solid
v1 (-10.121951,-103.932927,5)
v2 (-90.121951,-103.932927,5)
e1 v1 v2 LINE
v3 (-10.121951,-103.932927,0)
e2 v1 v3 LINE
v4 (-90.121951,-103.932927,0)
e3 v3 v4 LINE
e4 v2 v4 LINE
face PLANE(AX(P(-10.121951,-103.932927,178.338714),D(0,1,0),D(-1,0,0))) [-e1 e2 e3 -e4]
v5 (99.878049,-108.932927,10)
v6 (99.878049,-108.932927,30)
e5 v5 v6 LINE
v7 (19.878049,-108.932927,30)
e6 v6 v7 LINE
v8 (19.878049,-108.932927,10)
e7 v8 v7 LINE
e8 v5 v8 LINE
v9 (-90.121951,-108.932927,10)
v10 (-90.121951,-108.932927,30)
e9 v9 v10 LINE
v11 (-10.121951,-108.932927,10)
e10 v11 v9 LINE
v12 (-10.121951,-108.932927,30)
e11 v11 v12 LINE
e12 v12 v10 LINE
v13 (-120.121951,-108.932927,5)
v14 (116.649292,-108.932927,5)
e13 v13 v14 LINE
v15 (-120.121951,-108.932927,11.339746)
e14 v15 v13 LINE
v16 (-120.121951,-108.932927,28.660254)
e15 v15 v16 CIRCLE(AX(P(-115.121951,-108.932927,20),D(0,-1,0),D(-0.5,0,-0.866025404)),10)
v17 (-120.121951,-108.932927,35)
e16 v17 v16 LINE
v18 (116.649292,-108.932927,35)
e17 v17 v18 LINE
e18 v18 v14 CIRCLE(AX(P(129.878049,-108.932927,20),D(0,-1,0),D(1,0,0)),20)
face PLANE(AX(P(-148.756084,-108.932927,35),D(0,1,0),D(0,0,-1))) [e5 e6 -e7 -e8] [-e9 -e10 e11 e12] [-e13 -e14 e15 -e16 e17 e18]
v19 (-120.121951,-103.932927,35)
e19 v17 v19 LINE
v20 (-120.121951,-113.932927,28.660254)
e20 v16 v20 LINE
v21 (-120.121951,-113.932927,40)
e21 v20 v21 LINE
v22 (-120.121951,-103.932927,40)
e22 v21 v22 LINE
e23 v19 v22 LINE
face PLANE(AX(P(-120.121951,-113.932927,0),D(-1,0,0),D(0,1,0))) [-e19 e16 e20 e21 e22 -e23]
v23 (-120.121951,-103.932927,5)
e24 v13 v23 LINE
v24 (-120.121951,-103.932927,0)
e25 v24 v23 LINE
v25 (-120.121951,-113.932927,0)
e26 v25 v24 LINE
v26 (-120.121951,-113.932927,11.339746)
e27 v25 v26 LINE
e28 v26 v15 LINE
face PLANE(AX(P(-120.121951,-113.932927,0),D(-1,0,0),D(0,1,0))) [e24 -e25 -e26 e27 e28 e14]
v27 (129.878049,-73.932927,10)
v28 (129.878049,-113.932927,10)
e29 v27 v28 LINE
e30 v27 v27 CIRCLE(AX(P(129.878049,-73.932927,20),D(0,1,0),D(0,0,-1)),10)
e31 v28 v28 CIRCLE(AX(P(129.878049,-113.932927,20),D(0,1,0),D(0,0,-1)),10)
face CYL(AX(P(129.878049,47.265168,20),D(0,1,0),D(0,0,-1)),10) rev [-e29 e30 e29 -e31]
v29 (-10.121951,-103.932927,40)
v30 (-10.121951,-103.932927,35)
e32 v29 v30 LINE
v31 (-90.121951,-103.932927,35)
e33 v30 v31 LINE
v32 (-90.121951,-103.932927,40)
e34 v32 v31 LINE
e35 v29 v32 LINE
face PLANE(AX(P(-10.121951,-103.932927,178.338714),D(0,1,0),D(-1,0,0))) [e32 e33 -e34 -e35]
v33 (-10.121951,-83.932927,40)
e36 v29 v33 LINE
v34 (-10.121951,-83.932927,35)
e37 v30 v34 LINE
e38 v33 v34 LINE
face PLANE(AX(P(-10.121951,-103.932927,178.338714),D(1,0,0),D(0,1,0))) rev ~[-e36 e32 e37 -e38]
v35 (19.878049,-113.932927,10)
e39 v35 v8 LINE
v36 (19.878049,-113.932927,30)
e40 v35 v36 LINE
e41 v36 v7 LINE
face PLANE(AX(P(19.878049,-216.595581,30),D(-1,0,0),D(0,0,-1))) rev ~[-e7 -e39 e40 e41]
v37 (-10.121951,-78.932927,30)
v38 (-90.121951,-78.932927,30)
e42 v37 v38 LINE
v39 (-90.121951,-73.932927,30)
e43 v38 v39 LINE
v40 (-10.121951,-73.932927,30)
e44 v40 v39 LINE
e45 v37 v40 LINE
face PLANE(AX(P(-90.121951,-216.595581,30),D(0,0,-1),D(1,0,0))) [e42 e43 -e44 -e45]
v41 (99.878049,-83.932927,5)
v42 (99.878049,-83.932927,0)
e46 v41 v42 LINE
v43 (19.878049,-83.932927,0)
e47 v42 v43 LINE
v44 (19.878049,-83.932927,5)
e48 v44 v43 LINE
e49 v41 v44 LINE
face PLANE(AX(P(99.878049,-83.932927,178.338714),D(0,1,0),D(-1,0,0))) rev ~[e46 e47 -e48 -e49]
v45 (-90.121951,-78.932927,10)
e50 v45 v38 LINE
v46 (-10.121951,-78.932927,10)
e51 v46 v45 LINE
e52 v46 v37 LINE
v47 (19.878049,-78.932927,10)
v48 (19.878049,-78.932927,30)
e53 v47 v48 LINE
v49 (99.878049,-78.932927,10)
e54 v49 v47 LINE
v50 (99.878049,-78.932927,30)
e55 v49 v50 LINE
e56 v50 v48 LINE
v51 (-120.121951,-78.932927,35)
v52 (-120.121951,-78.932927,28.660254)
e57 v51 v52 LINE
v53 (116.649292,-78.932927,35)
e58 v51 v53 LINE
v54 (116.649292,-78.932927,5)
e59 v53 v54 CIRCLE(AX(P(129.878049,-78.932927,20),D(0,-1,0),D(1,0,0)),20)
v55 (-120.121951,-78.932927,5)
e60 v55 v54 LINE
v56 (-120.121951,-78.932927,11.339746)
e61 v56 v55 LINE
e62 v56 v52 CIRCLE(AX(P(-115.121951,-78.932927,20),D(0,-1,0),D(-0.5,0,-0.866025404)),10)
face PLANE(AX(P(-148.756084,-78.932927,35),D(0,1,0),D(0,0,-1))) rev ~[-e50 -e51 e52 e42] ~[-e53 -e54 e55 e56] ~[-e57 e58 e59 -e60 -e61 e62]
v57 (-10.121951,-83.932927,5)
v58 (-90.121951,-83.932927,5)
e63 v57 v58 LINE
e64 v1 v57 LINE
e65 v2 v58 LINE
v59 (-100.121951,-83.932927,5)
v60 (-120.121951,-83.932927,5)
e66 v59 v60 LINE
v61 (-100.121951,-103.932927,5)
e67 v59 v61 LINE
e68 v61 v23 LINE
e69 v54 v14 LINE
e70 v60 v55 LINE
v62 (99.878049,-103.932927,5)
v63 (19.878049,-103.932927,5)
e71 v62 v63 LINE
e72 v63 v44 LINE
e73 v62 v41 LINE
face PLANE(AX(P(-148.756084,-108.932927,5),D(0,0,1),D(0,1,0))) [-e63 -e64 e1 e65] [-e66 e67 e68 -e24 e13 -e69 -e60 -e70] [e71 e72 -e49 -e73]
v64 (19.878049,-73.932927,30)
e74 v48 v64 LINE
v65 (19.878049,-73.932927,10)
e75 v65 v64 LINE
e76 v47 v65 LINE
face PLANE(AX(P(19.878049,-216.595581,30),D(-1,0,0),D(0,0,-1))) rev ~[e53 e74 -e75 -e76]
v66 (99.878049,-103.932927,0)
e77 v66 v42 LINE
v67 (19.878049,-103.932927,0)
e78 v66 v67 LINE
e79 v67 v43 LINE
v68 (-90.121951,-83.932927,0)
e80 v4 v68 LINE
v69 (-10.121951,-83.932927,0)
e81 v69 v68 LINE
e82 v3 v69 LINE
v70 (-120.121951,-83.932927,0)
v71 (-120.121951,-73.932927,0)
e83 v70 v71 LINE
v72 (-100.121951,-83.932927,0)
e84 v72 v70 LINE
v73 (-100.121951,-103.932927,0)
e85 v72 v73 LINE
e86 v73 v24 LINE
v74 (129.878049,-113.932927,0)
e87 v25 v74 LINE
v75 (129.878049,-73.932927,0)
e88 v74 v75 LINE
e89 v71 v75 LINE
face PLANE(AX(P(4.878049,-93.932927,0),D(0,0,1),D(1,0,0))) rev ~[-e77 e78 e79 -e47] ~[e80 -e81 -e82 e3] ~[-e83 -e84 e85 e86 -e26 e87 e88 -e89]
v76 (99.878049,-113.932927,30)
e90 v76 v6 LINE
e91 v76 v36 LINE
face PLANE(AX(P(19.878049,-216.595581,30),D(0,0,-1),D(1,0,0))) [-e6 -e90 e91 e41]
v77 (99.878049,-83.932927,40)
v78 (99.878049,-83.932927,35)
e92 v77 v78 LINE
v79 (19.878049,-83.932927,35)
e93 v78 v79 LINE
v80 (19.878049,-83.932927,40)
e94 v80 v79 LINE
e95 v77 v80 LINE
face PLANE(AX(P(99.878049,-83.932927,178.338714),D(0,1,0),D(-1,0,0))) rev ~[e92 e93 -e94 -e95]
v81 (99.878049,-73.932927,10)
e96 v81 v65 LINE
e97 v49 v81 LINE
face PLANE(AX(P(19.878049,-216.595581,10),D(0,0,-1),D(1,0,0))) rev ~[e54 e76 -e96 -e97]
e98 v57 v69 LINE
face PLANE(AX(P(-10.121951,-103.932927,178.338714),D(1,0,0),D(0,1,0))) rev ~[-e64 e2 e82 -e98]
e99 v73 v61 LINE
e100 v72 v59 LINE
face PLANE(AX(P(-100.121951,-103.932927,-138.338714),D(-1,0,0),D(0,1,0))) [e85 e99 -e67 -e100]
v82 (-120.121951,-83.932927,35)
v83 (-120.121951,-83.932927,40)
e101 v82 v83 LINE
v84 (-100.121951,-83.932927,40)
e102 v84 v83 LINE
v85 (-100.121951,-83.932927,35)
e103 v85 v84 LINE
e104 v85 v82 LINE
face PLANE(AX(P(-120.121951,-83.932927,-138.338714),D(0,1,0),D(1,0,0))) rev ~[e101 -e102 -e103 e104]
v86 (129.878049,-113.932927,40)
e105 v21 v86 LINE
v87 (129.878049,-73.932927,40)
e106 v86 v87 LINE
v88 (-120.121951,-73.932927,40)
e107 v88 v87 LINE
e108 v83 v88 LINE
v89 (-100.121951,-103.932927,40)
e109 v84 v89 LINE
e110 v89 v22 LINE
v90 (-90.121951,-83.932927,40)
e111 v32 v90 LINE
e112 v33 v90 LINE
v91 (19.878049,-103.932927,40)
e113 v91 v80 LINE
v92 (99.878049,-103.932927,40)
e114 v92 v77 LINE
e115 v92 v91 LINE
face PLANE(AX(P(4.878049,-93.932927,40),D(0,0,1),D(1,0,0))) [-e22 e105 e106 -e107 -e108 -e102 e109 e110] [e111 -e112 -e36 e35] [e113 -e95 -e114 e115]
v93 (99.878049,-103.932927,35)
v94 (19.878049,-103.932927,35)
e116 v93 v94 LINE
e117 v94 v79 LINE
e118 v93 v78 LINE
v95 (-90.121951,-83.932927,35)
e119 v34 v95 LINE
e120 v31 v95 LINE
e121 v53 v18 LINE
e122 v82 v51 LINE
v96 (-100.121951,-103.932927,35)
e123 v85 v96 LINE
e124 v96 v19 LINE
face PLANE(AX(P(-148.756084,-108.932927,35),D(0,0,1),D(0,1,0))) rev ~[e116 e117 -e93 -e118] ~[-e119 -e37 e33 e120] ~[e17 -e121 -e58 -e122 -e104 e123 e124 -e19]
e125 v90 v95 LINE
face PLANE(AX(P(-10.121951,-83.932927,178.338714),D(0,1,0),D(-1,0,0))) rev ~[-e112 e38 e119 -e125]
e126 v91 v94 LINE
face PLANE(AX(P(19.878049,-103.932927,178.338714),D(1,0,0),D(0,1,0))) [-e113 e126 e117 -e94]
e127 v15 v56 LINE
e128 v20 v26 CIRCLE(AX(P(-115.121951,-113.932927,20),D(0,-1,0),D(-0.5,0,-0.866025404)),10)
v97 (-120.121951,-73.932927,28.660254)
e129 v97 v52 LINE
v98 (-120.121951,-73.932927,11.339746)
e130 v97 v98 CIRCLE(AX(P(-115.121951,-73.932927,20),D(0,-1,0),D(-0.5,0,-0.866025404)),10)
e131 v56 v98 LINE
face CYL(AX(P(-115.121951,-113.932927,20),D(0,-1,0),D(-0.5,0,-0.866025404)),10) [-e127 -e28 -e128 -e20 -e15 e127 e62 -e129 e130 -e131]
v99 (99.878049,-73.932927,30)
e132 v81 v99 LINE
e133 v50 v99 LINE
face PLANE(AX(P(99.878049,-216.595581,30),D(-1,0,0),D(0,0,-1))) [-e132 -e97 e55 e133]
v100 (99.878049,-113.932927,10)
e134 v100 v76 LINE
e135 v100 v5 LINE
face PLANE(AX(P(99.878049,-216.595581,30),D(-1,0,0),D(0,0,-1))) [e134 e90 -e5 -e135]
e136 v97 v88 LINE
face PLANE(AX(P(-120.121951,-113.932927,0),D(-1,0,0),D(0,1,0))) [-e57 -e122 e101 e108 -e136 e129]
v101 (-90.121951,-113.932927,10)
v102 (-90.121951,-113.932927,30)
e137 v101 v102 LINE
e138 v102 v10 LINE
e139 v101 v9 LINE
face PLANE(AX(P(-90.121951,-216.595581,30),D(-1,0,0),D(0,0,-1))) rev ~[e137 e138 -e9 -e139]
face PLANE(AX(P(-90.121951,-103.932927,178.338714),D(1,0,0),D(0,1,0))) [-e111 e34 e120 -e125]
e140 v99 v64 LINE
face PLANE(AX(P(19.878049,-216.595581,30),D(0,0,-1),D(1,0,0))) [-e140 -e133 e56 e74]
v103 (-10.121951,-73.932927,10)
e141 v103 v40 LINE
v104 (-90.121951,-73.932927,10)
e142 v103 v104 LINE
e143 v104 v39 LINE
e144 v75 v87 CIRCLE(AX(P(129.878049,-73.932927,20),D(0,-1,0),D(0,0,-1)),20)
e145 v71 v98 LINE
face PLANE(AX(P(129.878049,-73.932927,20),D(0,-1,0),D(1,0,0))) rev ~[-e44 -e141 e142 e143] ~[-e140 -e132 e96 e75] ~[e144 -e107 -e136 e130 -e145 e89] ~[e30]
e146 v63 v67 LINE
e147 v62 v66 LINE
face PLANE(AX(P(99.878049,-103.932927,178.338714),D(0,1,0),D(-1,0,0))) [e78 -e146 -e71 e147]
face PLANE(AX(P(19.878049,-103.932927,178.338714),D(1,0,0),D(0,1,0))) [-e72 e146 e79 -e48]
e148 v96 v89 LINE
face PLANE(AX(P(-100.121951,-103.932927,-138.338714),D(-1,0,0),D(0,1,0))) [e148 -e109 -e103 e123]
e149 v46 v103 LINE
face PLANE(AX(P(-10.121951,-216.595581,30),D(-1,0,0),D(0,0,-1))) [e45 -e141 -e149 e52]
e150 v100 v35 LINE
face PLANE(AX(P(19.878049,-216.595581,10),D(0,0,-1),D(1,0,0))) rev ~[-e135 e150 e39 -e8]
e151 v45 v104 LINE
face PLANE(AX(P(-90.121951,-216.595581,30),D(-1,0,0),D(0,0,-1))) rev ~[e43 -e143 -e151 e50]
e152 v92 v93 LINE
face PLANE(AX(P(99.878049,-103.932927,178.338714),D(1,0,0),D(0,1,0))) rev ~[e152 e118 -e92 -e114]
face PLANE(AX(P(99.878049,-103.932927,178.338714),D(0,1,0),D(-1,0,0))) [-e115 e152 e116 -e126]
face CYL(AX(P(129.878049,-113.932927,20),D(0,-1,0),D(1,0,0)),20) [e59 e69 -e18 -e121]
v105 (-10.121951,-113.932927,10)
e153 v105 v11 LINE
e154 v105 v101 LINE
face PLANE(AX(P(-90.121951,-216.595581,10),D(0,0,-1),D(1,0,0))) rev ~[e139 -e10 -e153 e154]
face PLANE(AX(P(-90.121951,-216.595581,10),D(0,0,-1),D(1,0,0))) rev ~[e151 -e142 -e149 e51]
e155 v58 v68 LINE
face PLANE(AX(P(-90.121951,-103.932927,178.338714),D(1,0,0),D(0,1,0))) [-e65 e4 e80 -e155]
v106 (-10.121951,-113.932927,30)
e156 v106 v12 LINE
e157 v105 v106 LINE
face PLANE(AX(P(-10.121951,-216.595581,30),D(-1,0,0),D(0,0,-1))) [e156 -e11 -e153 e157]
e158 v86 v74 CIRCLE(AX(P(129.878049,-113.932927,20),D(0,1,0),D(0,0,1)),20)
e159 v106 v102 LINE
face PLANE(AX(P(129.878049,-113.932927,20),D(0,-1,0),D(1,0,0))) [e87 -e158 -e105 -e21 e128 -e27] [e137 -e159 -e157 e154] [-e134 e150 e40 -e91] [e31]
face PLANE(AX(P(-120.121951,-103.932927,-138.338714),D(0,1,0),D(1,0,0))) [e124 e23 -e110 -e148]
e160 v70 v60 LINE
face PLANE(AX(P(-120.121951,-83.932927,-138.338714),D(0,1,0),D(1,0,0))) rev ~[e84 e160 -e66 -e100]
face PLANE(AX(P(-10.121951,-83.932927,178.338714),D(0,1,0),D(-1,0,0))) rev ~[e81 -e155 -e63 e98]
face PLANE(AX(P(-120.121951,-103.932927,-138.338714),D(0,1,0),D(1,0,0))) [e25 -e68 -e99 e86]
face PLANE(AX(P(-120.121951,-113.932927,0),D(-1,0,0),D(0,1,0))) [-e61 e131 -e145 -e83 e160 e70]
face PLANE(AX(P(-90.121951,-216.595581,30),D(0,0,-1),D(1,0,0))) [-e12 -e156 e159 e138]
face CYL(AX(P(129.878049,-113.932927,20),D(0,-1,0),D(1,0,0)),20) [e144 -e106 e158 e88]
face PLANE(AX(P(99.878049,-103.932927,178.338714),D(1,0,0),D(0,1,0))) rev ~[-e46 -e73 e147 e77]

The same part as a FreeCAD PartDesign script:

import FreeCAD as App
import Part
import Sketcher
Q = App.Units.Quantity

doc = App.newDocument("Part")
body = doc.addObject("PartDesign::Body", "Body")

# Sketch on XY plane
sketch1 = body.newObject("Sketcher::SketchObject", "Sketch")
sketch1.AttachmentSupport = (doc.getObject("XY_Plane"), [""])
sketch1.MapMode = "FlatFace"
sketch1.addGeometry([
    Part.LineSegment(App.Vector(-120, -74, 0), App.Vector(-120, -114, 0)),
    Part.LineSegment(App.Vector(-120, -114, 0), App.Vector(130, -114, 0)),
    Part.LineSegment(App.Vector(130, -114, 0), App.Vector(130, -74, 0)),
    Part.LineSegment(App.Vector(130, -74, 0), App.Vector(-120, -74, 0)),
], False)
sketch1.addConstraint([
    Sketcher.Constraint("Coincident", 0, 2, 1, 1),
    Sketcher.Constraint("Coincident", 1, 2, 2, 1),
    Sketcher.Constraint("Coincident", 2, 2, 3, 1),
    Sketcher.Constraint("Coincident", 3, 2, 0, 1),
    Sketcher.Constraint("Vertical", 0),
    Sketcher.Constraint("Horizontal", 1),
    Sketcher.Constraint("Vertical", 2),
    Sketcher.Constraint("Horizontal", 3),
    Sketcher.Constraint("DistanceX", 1, 1, 1, 2, Q("250 mm")),
    Sketcher.Constraint("DistanceY", 0, 2, 0, 1, Q("40 mm")),
    Sketcher.Constraint("DistanceX", 0, 2, -1, 1, Q("120.121951 mm")),
    Sketcher.Constraint("DistanceY", 0, 2, -1, 1, Q("113.932927 mm")),
])
pad1 = body.newObject("PartDesign::Pad", "Pad")
pad1.Profile = sketch1
pad1.Length = 40

# Sketch on YZ plane
sketch2 = body.newObject("Sketcher::SketchObject", "Sketch001")
sketch2.AttachmentSupport = (doc.getObject("YZ_Plane"), [""])
sketch2.MapMode = "FlatFace"
sketch2.AttachmentOffset = App.Placement(App.Vector(0, 0, 129.878049), App.Rotation())
sketch2.addGeometry([
    Part.LineSegment(App.Vector(-79, 35, 0), App.Vector(-109, 35, 0)),
    Part.LineSegment(App.Vector(-109, 35, 0), App.Vector(-109, 5, 0)),
    Part.LineSegment(App.Vector(-109, 5, 0), App.Vector(-79, 5, 0)),
    Part.LineSegment(App.Vector(-79, 5, 0), App.Vector(-79, 35, 0)),
], False)
sketch2.addConstraint([
    Sketcher.Constraint("Coincident", 0, 2, 1, 1),
    Sketcher.Constraint("Coincident", 1, 2, 2, 1),
    Sketcher.Constraint("Coincident", 2, 2, 3, 1),
    Sketcher.Constraint("Coincident", 3, 2, 0, 1),
    Sketcher.Constraint("Horizontal", 0),
    Sketcher.Constraint("Vertical", 1),
    Sketcher.Constraint("Horizontal", 2),
    Sketcher.Constraint("Vertical", 3),
    Sketcher.Constraint("Equal", 2, 1),
    Sketcher.Constraint("DistanceX", 0, 2, 0, 1, Q("30 mm")),
    Sketcher.Constraint("DistanceY", -1, 1, 0, 2, Q("35 mm")),
    Sketcher.Constraint("DistanceX", 0, 2, -1, 1, Q("108.932927 mm")),
])
pocket1 = body.newObject("PartDesign::Pocket", "Pocket")
pocket1.Profile = sketch2
pocket1.Type = "ThroughAll"
pocket1.Midplane = True

# Sketch on XY plane
sketch3 = body.newObject("Sketcher::SketchObject", "Sketch002")
sketch3.AttachmentSupport = (doc.getObject("XY_Plane"), [""])
sketch3.MapMode = "FlatFace"
sketch3.addGeometry([
    Part.LineSegment(App.Vector(100, -84, 0), App.Vector(100, -104, 0)),  # 0
    Part.LineSegment(App.Vector(100, -104, 0), App.Vector(20, -104, 0)),  # 1
    Part.LineSegment(App.Vector(20, -104, 0), App.Vector(20, -84, 0)),  # 2
    Part.LineSegment(App.Vector(20, -84, 0), App.Vector(100, -84, 0)),  # 3
    Part.LineSegment(App.Vector(-10, -84, 0), App.Vector(-10, -104, 0)),  # 4
    Part.LineSegment(App.Vector(-10, -104, 0), App.Vector(-90, -104, 0)),  # 5
    Part.LineSegment(App.Vector(-90, -104, 0), App.Vector(-90, -84, 0)),  # 6
    Part.LineSegment(App.Vector(-90, -84, 0), App.Vector(-10, -84, 0)),  # 7
], False)
sketch3.addConstraint([
    Sketcher.Constraint("Coincident", 0, 2, 1, 1),
    Sketcher.Constraint("Coincident", 1, 2, 2, 1),
    Sketcher.Constraint("Coincident", 2, 2, 3, 1),
    Sketcher.Constraint("Coincident", 3, 2, 0, 1),
    Sketcher.Constraint("Coincident", 4, 2, 5, 1),
    Sketcher.Constraint("Coincident", 5, 2, 6, 1),
    Sketcher.Constraint("Coincident", 6, 2, 7, 1),
    Sketcher.Constraint("Coincident", 7, 2, 4, 1),
    Sketcher.Constraint("Vertical", 0),
    Sketcher.Constraint("Horizontal", 1),
    Sketcher.Constraint("Vertical", 2),
    Sketcher.Constraint("Horizontal", 3),
    Sketcher.Constraint("Vertical", 4),
    Sketcher.Constraint("Horizontal", 5),
    Sketcher.Constraint("Vertical", 6),
    Sketcher.Constraint("Horizontal", 7),
    Sketcher.Constraint("Horizontal", 1, 2, 4, 2),
    Sketcher.Constraint("Horizontal", 3, 2, 6, 2),
    Sketcher.Constraint("Equal", 3, 5),
    Sketcher.Constraint("DistanceX", 1, 2, 1, 1, Q("80 mm")),
    Sketcher.Constraint("DistanceY", 0, 2, 0, 1, Q("20 mm")),
    Sketcher.Constraint("DistanceX", 4, 2, 1, 2, Q("30 mm")),
    Sketcher.Constraint("DistanceX", -1, 1, 0, 2, Q("99.878049 mm")),
    Sketcher.Constraint("DistanceY", 0, 2, -1, 1, Q("103.932927 mm")),
])
pocket2 = body.newObject("PartDesign::Pocket", "Pocket001")
pocket2.Profile = sketch3
pocket2.Type = "ThroughAll"
pocket2.Midplane = True

# Sketch on XZ plane
sketch4 = body.newObject("Sketcher::SketchObject", "Sketch003")
sketch4.AttachmentSupport = (doc.getObject("XZ_Plane"), [""])
sketch4.MapMode = "FlatFace"
sketch4.AttachmentOffset = App.Placement(App.Vector(0, 0, 73.932927), App.Rotation())
sketch4.addGeometry([
    Part.LineSegment(App.Vector(20, 10, 0), App.Vector(20, 30, 0)),  # 0
    Part.LineSegment(App.Vector(20, 30, 0), App.Vector(100, 30, 0)),  # 1
    Part.LineSegment(App.Vector(100, 30, 0), App.Vector(100, 10, 0)),  # 2
    Part.LineSegment(App.Vector(100, 10, 0), App.Vector(20, 10, 0)),  # 3
    Part.LineSegment(App.Vector(-90, 10, 0), App.Vector(-90, 30, 0)),  # 4
    Part.LineSegment(App.Vector(-90, 30, 0), App.Vector(-10, 30, 0)),  # 5
    Part.LineSegment(App.Vector(-10, 30, 0), App.Vector(-10, 10, 0)),  # 6
    Part.LineSegment(App.Vector(-10, 10, 0), App.Vector(-90, 10, 0)),  # 7
], False)
sketch4.addConstraint([
    Sketcher.Constraint("Coincident", 0, 2, 1, 1),
    Sketcher.Constraint("Coincident", 1, 2, 2, 1),
    Sketcher.Constraint("Coincident", 2, 2, 3, 1),
    Sketcher.Constraint("Coincident", 3, 2, 0, 1),
    Sketcher.Constraint("Coincident", 4, 2, 5, 1),
    Sketcher.Constraint("Coincident", 5, 2, 6, 1),
    Sketcher.Constraint("Coincident", 6, 2, 7, 1),
    Sketcher.Constraint("Coincident", 7, 2, 4, 1),
    Sketcher.Constraint("Vertical", 0),
    Sketcher.Constraint("Horizontal", 1),
    Sketcher.Constraint("Vertical", 2),
    Sketcher.Constraint("Horizontal", 3),
    Sketcher.Constraint("Vertical", 4),
    Sketcher.Constraint("Horizontal", 5),
    Sketcher.Constraint("Vertical", 6),
    Sketcher.Constraint("Horizontal", 7),
    Sketcher.Constraint("Horizontal", 1, 2, 4, 2),
    Sketcher.Constraint("Horizontal", 3, 2, 6, 2),
    Sketcher.Constraint("Equal", 3, 5),
    Sketcher.Constraint("DistanceX", 1, 1, 1, 2, Q("80 mm")),
    Sketcher.Constraint("DistanceY", 0, 1, 0, 2, Q("20 mm")),
    Sketcher.Constraint("DistanceY", -1, 1, 0, 2, Q("30 mm")),
    Sketcher.Constraint("DistanceX", 4, 2, 0, 2, Q("110 mm")),
    Sketcher.Constraint("DistanceX", -1, 1, 0, 2, Q("19.878049 mm")),
])
pocket3 = body.newObject("PartDesign::Pocket", "Pocket002")
pocket3.Profile = sketch4
pocket3.Type = "ThroughAll"
pocket3.Midplane = True

# Sketch on XY plane
sketch5 = body.newObject("Sketcher::SketchObject", "Sketch004")
sketch5.AttachmentSupport = (doc.getObject("XY_Plane"), [""])
sketch5.MapMode = "FlatFace"
sketch5.AttachmentOffset = App.Placement(App.Vector(0, 0, 40), App.Rotation())
sketch5.addGeometry([
    Part.LineSegment(App.Vector(-120, -84, 0), App.Vector(-120, -104, 0)),
    Part.LineSegment(App.Vector(-120, -104, 0), App.Vector(-100, -104, 0)),
    Part.LineSegment(App.Vector(-100, -104, 0), App.Vector(-100, -84, 0)),
    Part.LineSegment(App.Vector(-100, -84, 0), App.Vector(-120, -84, 0)),
], False)
sketch5.addConstraint([
    Sketcher.Constraint("Coincident", 0, 2, 1, 1),
    Sketcher.Constraint("Coincident", 1, 2, 2, 1),
    Sketcher.Constraint("Coincident", 2, 2, 3, 1),
    Sketcher.Constraint("Coincident", 3, 2, 0, 1),
    Sketcher.Constraint("Vertical", 0),
    Sketcher.Constraint("Horizontal", 1),
    Sketcher.Constraint("Vertical", 2),
    Sketcher.Constraint("Horizontal", 3),
    Sketcher.Constraint("Equal", 3, 0),
    Sketcher.Constraint("DistanceX", 1, 1, 1, 2, Q("20 mm")),
    Sketcher.Constraint("DistanceX", 0, 2, -1, 1, Q("120.121951 mm")),
    Sketcher.Constraint("DistanceY", 0, 2, -1, 1, Q("103.932927 mm")),
])
pocket4 = body.newObject("PartDesign::Pocket", "Pocket003")
pocket4.Profile = sketch5
pocket4.Type = "ThroughAll"
pocket4.Midplane = True

# Sketch on XZ plane
sketch6 = body.newObject("Sketcher::SketchObject", "Sketch005")
sketch6.AttachmentSupport = (doc.getObject("XZ_Plane"), [""])
sketch6.MapMode = "FlatFace"
sketch6.AttachmentOffset = App.Placement(App.Vector(0, 0, 113.932927), App.Rotation())
sketch6.addGeometry(Part.Circle(App.Vector(-115, 20, 0), App.Vector(0, 0, 1), 10), False)
sketch6.addConstraint([
    Sketcher.Constraint("Diameter", 0, Q("20 mm")),
    Sketcher.Constraint("DistanceY", -1, 1, 0, 3, Q("20 mm")),
    Sketcher.Constraint("DistanceX", 0, 3, -1, 1, Q("115.121951 mm")),
])
pad2 = body.newObject("PartDesign::Pad", "Pad001")
pad2.Profile = sketch6
pad2.Length = 40
pad2.Reversed = True

# Sketch on XZ plane
sketch7 = body.newObject("Sketcher::SketchObject", "Sketch006")
sketch7.AttachmentSupport = (doc.getObject("XZ_Plane"), [""])
sketch7.MapMode = "FlatFace"
sketch7.AttachmentOffset = App.Placement(App.Vector(0, 0, 113.932927), App.Rotation())
sketch7.addGeometry(Part.Circle(App.Vector(130, 20, 0), App.Vector(0, 0, 1), 20), False)
sketch7.addConstraint([
    Sketcher.Constraint("Diameter", 0, Q("40 mm")),
    Sketcher.Constraint("DistanceY", -1, 1, 0, 3, Q("20 mm")),
    Sketcher.Constraint("DistanceX", -1, 1, 0, 3, Q("129.878049 mm")),
])
pad3 = body.newObject("PartDesign::Pad", "Pad002")
pad3.Profile = sketch7
pad3.Length = 40
pad3.Reversed = True

# Sketch on XZ plane
sketch8 = body.newObject("Sketcher::SketchObject", "Sketch007")
sketch8.AttachmentSupport = (doc.getObject("XZ_Plane"), [""])
sketch8.MapMode = "FlatFace"
sketch8.AttachmentOffset = App.Placement(App.Vector(0, 0, 113.932927), App.Rotation())
sketch8.addGeometry(Part.Circle(App.Vector(130, 20, 0), App.Vector(0, 0, 1), 10), False)
sketch8.addConstraint([
    Sketcher.Constraint("Diameter", 0, Q("20 mm")),
    Sketcher.Constraint("DistanceY", -1, 1, 0, 3, Q("20 mm")),
    Sketcher.Constraint("DistanceX", -1, 1, 0, 3, Q("129.878049 mm")),
])
pocket5 = body.newObject("PartDesign::Pocket", "Pocket004")
pocket5.Profile = sketch8
pocket5.Type = "ThroughAll"
pocket5.Midplane = True

doc.recompute()
